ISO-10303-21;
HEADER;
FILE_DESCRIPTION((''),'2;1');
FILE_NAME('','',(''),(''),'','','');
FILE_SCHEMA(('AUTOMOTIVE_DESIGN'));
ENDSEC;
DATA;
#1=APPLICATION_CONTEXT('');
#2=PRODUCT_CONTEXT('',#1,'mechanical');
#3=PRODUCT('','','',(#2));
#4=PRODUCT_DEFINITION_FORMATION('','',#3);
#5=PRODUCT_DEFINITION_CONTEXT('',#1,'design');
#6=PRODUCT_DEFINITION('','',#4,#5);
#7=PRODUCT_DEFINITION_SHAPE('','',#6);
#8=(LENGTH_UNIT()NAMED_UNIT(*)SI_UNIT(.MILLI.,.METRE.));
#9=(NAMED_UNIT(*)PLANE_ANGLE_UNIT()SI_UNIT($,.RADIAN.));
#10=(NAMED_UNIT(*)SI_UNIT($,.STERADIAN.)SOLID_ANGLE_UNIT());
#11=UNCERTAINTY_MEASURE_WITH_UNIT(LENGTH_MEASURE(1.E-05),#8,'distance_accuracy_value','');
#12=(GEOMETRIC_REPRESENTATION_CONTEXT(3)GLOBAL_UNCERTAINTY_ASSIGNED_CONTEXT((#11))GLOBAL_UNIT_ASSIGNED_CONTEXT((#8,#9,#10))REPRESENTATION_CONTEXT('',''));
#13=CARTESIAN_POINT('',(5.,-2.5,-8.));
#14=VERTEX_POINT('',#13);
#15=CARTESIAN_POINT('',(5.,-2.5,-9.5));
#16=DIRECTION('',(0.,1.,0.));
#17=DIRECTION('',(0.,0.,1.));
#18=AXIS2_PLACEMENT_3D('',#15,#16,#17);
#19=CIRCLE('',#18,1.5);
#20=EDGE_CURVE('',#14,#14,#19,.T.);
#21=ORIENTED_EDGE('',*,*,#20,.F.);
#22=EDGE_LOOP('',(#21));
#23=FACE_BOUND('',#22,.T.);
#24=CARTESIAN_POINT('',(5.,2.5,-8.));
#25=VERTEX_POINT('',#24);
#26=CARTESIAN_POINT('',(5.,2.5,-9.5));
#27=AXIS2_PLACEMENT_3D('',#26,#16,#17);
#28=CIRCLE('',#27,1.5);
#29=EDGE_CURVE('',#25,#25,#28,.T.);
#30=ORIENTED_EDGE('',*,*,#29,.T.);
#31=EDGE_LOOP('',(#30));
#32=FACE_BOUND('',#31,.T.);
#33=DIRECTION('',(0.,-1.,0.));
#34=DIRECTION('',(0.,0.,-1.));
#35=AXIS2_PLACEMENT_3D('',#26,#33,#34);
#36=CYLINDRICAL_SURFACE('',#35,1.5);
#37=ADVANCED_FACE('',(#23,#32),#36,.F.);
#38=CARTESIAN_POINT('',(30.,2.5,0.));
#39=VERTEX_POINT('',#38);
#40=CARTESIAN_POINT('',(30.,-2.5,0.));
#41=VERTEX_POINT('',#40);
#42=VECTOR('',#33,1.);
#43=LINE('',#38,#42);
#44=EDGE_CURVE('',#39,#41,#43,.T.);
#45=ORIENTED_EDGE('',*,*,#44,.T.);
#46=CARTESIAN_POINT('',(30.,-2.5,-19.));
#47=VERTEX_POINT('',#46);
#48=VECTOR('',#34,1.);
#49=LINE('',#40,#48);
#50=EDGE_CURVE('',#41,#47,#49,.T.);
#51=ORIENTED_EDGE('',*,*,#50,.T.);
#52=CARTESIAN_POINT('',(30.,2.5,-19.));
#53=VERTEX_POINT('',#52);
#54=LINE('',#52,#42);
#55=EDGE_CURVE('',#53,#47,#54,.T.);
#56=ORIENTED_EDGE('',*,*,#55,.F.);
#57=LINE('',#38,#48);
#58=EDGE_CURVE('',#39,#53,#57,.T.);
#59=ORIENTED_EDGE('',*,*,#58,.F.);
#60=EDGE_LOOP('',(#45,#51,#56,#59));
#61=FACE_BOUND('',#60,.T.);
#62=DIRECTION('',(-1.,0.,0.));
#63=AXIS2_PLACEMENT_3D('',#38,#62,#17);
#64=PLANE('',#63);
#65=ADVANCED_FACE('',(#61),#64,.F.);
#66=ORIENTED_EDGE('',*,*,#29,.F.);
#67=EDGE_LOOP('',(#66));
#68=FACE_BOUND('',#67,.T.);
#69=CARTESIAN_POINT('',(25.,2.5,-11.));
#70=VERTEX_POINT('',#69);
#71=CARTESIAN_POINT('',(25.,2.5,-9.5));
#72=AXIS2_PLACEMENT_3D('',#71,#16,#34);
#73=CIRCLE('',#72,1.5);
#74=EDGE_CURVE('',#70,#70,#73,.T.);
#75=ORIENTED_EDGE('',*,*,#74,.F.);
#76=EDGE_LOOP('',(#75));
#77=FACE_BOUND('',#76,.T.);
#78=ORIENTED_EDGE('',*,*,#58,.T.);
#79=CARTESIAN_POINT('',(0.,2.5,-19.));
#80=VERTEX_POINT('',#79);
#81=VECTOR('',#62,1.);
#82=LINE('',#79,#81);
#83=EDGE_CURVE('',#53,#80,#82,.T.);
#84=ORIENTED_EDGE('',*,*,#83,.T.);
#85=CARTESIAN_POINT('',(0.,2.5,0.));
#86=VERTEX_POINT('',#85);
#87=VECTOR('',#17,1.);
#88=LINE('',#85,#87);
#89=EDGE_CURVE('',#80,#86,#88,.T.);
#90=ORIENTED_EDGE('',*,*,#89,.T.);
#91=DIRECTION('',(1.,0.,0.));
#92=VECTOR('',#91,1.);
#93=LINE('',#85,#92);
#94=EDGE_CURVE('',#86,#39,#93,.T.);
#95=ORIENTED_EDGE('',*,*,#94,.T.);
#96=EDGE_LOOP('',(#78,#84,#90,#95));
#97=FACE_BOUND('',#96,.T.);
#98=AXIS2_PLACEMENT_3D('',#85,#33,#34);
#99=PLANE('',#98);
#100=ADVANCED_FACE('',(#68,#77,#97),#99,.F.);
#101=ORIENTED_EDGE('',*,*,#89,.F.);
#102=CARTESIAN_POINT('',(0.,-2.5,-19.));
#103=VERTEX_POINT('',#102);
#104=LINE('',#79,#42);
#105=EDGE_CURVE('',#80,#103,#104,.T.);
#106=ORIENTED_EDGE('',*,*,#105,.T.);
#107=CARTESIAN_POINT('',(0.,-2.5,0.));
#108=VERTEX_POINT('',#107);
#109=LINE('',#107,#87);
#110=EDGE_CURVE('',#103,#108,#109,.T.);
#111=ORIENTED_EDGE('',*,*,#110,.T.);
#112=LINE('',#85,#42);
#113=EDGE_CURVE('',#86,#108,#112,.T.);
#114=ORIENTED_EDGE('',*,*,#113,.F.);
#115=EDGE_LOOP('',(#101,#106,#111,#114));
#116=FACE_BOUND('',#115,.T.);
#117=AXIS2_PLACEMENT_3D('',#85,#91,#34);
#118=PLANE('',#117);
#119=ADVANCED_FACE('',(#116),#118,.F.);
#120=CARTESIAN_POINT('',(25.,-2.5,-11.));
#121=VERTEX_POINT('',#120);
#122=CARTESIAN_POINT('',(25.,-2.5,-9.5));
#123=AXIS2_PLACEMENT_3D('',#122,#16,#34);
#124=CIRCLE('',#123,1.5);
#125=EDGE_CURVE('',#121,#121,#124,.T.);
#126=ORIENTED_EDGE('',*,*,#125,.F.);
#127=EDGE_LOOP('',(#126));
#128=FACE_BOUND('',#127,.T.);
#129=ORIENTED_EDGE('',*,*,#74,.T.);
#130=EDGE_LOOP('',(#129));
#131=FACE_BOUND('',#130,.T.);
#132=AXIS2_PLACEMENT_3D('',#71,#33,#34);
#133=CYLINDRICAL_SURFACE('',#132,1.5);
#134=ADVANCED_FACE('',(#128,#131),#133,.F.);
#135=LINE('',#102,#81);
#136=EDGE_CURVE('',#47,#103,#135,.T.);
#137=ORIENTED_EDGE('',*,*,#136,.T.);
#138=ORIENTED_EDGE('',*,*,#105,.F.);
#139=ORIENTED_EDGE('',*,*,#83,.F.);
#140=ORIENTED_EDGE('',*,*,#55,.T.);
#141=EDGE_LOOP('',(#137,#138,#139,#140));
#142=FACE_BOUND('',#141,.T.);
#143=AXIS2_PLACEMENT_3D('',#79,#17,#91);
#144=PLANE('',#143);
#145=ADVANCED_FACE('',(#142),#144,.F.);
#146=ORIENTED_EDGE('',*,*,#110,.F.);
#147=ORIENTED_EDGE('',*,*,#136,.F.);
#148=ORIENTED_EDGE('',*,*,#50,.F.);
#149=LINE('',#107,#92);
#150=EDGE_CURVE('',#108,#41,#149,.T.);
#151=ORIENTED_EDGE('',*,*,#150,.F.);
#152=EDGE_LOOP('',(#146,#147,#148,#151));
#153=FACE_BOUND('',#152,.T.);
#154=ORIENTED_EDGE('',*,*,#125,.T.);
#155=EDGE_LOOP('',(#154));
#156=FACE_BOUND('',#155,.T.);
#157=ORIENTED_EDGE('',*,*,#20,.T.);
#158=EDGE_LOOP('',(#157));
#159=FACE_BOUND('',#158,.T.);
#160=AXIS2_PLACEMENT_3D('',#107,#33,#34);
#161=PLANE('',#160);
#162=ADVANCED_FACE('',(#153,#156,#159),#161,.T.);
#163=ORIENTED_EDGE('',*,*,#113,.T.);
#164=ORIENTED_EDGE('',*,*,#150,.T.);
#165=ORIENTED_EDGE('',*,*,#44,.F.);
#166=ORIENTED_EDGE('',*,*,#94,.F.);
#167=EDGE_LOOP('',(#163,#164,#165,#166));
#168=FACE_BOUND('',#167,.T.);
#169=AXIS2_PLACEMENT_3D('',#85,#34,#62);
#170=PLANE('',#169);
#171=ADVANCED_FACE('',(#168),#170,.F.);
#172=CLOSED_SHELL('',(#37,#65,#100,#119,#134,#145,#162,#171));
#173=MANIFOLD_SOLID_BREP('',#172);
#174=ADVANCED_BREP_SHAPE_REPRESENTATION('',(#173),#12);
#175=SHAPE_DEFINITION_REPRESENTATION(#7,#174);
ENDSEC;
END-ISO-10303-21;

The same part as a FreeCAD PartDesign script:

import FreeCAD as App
import Part
import Sketcher
Q = App.Units.Quantity


def add_polygon(sketch, points):
    """Adds a closed chain of lines whose ends are joined by coincident constraints."""
    first, n = sketch.GeometryCount, len(points)
    for a, b in zip(points, points[1:] + points[:1]):
        sketch.addGeometry(Part.LineSegment(App.Vector(*a, 0), App.Vector(*b, 0)), False)
    for i in range(n):
        sketch.addConstraint(Sketcher.Constraint("Coincident", first + i, 2, first + (i + 1) % n, 1))

doc = App.newDocument("Part")
params = doc.addObject("Spreadsheet::Sheet", "Params")
for row, (alias, value) in enumerate([
    ("sketch1_diameter", "3 mm"),
    ("sketch1_width", "30 mm"),
    ("sketch1_height", "19 mm"),
    ("pad1_length", "5 mm"),
], start=1):
    params.set(f"A{row}", alias)
    params.set(f"B{row}", "=" + value)
    params.setAlias(f"B{row}", alias)

body = doc.addObject("PartDesign::Body", "Body")

# Sketch on XZ plane
sketch1 = body.newObject("Sketcher::SketchObject", "Sketch")
sketch1.AttachmentSupport = (doc.getObject("XZ_Plane"), [""])
sketch1.MapMode = "FlatFace"
add_polygon(sketch1, [(0, -19), (0, 0), (30, 0), (30, -19)])  # lines 0-3
sketch1.addGeometry(Part.Circle(App.Vector(5, -9.5, 0), App.Vector(0, 0, 1), 1.5), False)  # 4
sketch1.addGeometry(Part.Circle(App.Vector(25, -9.5, 0), App.Vector(0, 0, 1), 1.5), False)  # 5
sketch1.addConstraint(Sketcher.Constraint("Vertical", 0))
sketch1.addConstraint(Sketcher.Constraint("Horizontal", 1))
sketch1.addConstraint(Sketcher.Constraint("Vertical", 2))
sketch1.addConstraint(Sketcher.Constraint("Horizontal", 3))
sketch1.addConstraint(Sketcher.Constraint("Coincident", 0, 2, -1, 1))
sketch1.addConstraint(Sketcher.Constraint("Equal", 4, 5))
sketch1.addConstraint(Sketcher.Constraint("Horizontal", 4, 3, 5, 3))
sketch1.addConstraint(Sketcher.Constraint("Diameter", 4, Q("3 mm")))
sketch1.addConstraint(Sketcher.Constraint("DistanceX", 1, 1, 1, 2, Q("30 mm")))
sketch1.addConstraint(Sketcher.Constraint("DistanceY", 0, 1, 0, 2, Q("19 mm")))
sketch1.addConstraint(Sketcher.Constraint("DistanceX", -1, 1, 4, 3, Q("5 mm")))
sketch1.addConstraint(Sketcher.Constraint("DistanceX", -1, 1, 5, 3, Q("25 mm")))
sketch1.addConstraint(Sketcher.Constraint("DistanceY", 4, 3, -1, 1, Q("9.5 mm")))
sketch1.setExpression("Constraints[11]", "Params.sketch1_diameter")
sketch1.setExpression("Constraints[12]", "Params.sketch1_width")
sketch1.setExpression("Constraints[13]", "Params.sketch1_height")
pad1 = body.newObject("PartDesign::Pad", "Pad")
pad1.Profile = sketch1
pad1.setExpression("Length", "Params.pad1_length")
pad1.Midplane = True

doc.recompute()
